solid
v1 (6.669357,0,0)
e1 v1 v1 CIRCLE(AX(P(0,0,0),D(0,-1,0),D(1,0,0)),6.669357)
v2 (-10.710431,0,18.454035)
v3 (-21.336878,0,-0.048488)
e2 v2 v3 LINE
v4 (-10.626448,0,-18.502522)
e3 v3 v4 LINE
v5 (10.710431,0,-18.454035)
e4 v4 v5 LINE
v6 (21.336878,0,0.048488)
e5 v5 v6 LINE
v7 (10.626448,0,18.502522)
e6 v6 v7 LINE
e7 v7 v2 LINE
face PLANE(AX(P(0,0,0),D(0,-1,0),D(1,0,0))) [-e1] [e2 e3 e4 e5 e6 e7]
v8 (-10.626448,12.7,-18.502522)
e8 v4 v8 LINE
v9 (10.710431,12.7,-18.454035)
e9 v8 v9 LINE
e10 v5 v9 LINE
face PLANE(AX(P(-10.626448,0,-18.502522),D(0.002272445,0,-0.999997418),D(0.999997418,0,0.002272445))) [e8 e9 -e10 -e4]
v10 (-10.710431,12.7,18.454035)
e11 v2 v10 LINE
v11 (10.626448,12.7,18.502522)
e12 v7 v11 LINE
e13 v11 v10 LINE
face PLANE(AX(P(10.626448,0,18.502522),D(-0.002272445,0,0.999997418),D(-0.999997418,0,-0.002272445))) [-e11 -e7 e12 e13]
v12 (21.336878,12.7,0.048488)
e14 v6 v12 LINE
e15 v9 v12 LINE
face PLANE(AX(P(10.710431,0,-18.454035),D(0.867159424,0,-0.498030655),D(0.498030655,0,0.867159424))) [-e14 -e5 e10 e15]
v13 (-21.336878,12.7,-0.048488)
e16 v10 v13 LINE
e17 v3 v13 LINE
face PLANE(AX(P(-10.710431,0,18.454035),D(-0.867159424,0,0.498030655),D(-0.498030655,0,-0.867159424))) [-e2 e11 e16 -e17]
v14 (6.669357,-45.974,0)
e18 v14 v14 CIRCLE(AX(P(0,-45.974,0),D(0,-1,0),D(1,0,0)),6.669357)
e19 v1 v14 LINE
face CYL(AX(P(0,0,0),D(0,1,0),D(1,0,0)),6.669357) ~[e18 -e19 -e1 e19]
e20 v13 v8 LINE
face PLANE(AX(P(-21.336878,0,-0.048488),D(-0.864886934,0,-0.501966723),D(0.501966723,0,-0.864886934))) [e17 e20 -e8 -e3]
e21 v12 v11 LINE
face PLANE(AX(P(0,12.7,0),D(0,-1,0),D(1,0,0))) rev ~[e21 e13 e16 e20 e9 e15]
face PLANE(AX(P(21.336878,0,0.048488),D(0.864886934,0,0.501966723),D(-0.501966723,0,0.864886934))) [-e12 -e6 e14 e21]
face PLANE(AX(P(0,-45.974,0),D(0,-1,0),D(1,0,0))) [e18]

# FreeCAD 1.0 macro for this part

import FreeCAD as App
import Part
import Sketcher
Q = App.Units.Quantity


def add_polygon(sketch, points):
    """Adds a closed chain of lines whose ends are joined by coincident constraints."""
    first, n = sketch.GeometryCount, len(points)
    for a, b in zip(points, points[1:] + points[:1]):
        sketch.addGeometry(Part.LineSegment(App.Vector(*a, 0), App.Vector(*b, 0)), False)
    for i in range(n):
        sketch.addConstraint(Sketcher.Constraint("Coincident", first + i, 2, first + (i + 1) % n, 1))

doc = App.newDocument("Part")
body = doc.addObject("PartDesign::Body", "Body")

sketch1 = doc.addObject("Sketcher::SketchObject", "Sketch")
body.addObject(sketch1)
sketch1.AttachmentSupport = (doc.XZ_Plane, [""])
sketch1.MapMode = "FlatFace"
add_polygon(sketch1, [(-10.710431, 18.454035), (-21.336878, -0.048488), (-10.626448, -18.502522), (10.710431, -18.454035), (21.336878, 0.048488), (10.626448, 18.502522)])
sketch1.addConstraint(Sketcher.Constraint("Symmetric", 0, 2, 3, 2, -1, 1))
sketch1.addConstraint(Sketcher.Constraint("Symmetric", 1, 2, 4, 2, -1, 1))
sketch1.addConstraint(Sketcher.Constraint("Symmetric", 2, 2, 5, 2, -1, 1))
sketch1.addConstraint(Sketcher.Constraint("Equal", 0, 1))
sketch1.addConstraint(Sketcher.Constraint("Equal", 1, 2))
sketch1.addConstraint(Sketcher.Constraint("DistanceY", 0, 2, -1, 1, 0.048488))
sketch1.addConstraint(Sketcher.Constraint("DistanceY", 1, 2, -1, 1, 18.502522))
sketch1.addConstraint(Sketcher.Constraint("DistanceX", -1, 1, 2, 2, 10.710431))
sketch1.addConstraint(Sketcher.Constraint("DistanceX", 0, 2, 1, 2, 10.71043))
pad1 = doc.addObject("PartDesign::Pad", "Pad")
body.addObject(pad1)
pad1.Profile = sketch1
pad1.Length = Q("0.5 in")
pad1.Reversed = True

sketch2 = doc.addObject("Sketcher::SketchObject", "Sketch001")
body.addObject(sketch2)
sketch2.AttachmentSupport = (doc.XZ_Plane, [""])
sketch2.MapMode = "FlatFace"
sketch2.addGeometry(Part.Circle(App.Vector(0, 0, 0), App.Vector(0, 0, 1), 6.669357), False)
sketch2.addConstraint(Sketcher.Constraint("Coincident", 0, 3, -1, 1))
sketch2.addConstraint(Sketcher.Constraint("Diameter", 0, 13.338714))
pad2 = doc.addObject("PartDesign::Pad", "Pad001")
body.addObject(pad2)
pad2.Profile = sketch2
pad2.Length = Q("1.81 in")

doc.recompute()
